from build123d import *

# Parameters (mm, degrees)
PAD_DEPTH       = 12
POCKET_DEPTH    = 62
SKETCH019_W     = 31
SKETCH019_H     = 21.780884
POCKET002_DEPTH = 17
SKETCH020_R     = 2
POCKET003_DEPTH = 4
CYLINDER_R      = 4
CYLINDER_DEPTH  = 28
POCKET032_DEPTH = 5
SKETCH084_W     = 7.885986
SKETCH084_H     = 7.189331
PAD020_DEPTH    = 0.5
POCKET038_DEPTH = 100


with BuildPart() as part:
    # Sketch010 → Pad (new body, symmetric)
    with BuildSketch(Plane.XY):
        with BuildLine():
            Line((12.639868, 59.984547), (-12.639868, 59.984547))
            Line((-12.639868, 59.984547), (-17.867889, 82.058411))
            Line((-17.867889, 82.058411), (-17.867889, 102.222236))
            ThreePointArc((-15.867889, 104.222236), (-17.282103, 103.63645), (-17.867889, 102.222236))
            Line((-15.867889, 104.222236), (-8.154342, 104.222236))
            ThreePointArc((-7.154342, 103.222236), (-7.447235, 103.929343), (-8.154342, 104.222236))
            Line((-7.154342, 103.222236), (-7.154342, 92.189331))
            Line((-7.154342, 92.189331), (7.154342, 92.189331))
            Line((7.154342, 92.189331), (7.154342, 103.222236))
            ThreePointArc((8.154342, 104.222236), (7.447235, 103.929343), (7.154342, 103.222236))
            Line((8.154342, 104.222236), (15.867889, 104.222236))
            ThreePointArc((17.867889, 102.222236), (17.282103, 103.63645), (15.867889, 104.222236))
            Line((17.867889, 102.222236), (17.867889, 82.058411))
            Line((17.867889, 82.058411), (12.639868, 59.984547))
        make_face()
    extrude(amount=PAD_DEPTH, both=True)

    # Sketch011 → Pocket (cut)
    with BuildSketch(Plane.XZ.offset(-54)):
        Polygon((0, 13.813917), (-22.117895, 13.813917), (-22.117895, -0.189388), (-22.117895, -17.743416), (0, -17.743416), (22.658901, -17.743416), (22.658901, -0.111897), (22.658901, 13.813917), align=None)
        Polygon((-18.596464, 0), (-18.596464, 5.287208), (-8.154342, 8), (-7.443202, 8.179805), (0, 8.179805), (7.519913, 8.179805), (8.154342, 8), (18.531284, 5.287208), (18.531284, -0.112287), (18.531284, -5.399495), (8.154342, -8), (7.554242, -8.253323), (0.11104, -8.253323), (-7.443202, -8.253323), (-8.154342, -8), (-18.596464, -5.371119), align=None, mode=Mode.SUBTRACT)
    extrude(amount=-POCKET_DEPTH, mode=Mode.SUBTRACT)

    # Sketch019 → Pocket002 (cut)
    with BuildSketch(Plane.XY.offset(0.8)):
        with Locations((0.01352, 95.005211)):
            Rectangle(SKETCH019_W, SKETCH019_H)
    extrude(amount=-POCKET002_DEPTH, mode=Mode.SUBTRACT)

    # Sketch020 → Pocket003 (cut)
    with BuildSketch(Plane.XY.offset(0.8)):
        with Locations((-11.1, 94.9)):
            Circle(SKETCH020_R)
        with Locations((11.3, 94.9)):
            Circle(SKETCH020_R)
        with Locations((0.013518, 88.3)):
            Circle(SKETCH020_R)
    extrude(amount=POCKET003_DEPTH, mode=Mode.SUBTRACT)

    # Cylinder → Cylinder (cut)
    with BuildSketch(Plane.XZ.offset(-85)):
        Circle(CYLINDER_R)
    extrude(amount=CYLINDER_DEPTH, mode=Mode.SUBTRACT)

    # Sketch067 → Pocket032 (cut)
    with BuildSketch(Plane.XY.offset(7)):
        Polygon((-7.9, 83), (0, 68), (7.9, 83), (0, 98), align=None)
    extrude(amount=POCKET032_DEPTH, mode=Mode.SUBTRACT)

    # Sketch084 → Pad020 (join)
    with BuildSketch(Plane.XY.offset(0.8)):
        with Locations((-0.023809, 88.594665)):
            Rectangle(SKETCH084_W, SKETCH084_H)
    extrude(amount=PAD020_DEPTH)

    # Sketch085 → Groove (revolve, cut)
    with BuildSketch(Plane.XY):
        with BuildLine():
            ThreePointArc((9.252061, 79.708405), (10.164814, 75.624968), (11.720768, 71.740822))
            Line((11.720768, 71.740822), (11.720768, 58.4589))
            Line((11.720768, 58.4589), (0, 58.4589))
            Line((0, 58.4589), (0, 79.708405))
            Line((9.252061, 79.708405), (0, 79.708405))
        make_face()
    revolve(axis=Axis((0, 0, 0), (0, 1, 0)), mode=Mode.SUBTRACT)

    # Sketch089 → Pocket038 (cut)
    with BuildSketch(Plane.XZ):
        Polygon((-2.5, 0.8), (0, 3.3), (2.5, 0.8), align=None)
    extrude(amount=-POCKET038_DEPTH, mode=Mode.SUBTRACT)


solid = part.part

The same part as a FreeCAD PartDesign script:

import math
import FreeCAD as App
import Part
import Sketcher
from FreeCAD import Vector


def add_polygon(sketch, points):
    """Adds a closed chain of lines whose ends are joined by coincident constraints."""
    first, n = sketch.GeometryCount, len(points)
    for a, b in zip(points, points[1:] + points[:1]):
        sketch.addGeometry(Part.LineSegment(App.Vector(*a, 0), App.Vector(*b, 0)), False)
    for i in range(n):
        sketch.addConstraint(Sketcher.Constraint("Coincident", first + i, 2, first + (i + 1) % n, 1))

doc = App.newDocument("Part")
body = doc.addObject("PartDesign::Body", "Body")

# Sketch on XY plane
sketch1 = doc.addObject("Sketcher::SketchObject", "Sketch")
body.addObject(sketch1)
sketch1.AttachmentSupport = (doc.XY_Plane, [""])
sketch1.MapMode = "FlatFace"
sketch1.addGeometry([
    Part.LineSegment(Vector(-12.639868, 59.984547, 0), Vector(12.639868, 59.984547, 0)),  # 0
    Part.LineSegment(Vector(12.639868, 59.984547, 0), Vector(17.867889, 82.058411, 0)),  # 1
    Part.LineSegment(Vector(17.867889, 82.058411, 0), Vector(17.867889, 102.222236, 0)),  # 2
    Part.ArcOfCircle(Part.Circle(Vector(15.86789, 102.222237, 0), Vector(0, 0, 1), 1.999999), math.radians(-0.000043), math.radians(90.000043)),  # 3
    Part.LineSegment(Vector(15.867889, 104.222236, 0), Vector(8.154342, 104.222236, 0)),  # 4
    Part.ArcOfCircle(Part.Circle(Vector(8.154341, 103.222237, 0), Vector(0, 0, 1), 0.999999), math.radians(89.999957), math.radians(180.000043)),  # 5
    Part.LineSegment(Vector(7.154342, 103.222236, 0), Vector(7.154342, 92.189331, 0)),  # 6
    Part.LineSegment(Vector(7.154342, 92.189331, 0), Vector(-7.154342, 92.189331, 0)),  # 7
    Part.LineSegment(Vector(-7.154342, 92.189331, 0), Vector(-7.154342, 103.222236, 0)),  # 8
    Part.ArcOfCircle(Part.Circle(Vector(-8.154341, 103.222237, 0), Vector(0, 0, 1), 0.999999), math.radians(-0.000043), math.radians(90.000043)),  # 9
    Part.LineSegment(Vector(-8.154342, 104.222236, 0), Vector(-15.867889, 104.222236, 0)),  # 10
    Part.ArcOfCircle(Part.Circle(Vector(-15.86789, 102.222237, 0), Vector(0, 0, 1), 1.999999), math.radians(89.999957), math.radians(180.000043)),  # 11
    Part.LineSegment(Vector(-17.867889, 102.222236, 0), Vector(-17.867889, 82.058411, 0)),  # 12
    Part.LineSegment(Vector(-17.867889, 82.058411, 0), Vector(-12.639868, 59.984547, 0)),  # 13
], False)
sketch1.addConstraint([
    Sketcher.Constraint("Coincident", 0, 2, 1, 1),
    Sketcher.Constraint("Coincident", 1, 2, 2, 1),
    Sketcher.Constraint("Tangent", 2, 2, 3, 1),
    Sketcher.Constraint("Tangent", 3, 2, 4, 1),
    Sketcher.Constraint("Tangent", 4, 2, 5, 1),
    Sketcher.Constraint("Tangent", 5, 2, 6, 1),
    Sketcher.Constraint("Coincident", 6, 2, 7, 1),
    Sketcher.Constraint("Coincident", 7, 2, 8, 1),
    Sketcher.Constraint("Tangent", 8, 2, 9, 1),
    Sketcher.Constraint("Tangent", 9, 2, 10, 1),
    Sketcher.Constraint("Tangent", 10, 2, 11, 1),
    Sketcher.Constraint("Tangent", 11, 2, 12, 1),
    Sketcher.Constraint("Coincident", 12, 2, 13, 1),
    Sketcher.Constraint("Coincident", 13, 2, 0, 1),
    Sketcher.Constraint("Horizontal", 0),
    Sketcher.Constraint("Vertical", 2),
    Sketcher.Constraint("Horizontal", 4),
    Sketcher.Constraint("Vertical", 6),
    Sketcher.Constraint("Horizontal", 7),
    Sketcher.Constraint("Vertical", 8),
    Sketcher.Constraint("Horizontal", 10),
    Sketcher.Constraint("Vertical", 12),
    Sketcher.Constraint("Equal", 5, 9),
    Sketcher.Constraint("Equal", 3, 11),
    Sketcher.Constraint("Symmetric", 5, 3, 9, 3, -2),
    Sketcher.Constraint("Symmetric", 1, 2, 12, 2, -2),
    Sketcher.Constraint("Equal", 1, 13),
    Sketcher.Constraint("Radius", 3, 1.999999),
    Sketcher.Constraint("Radius", 5, 0.999999),
    Sketcher.Constraint("DistanceX", 0, 1, 0, 2, 25.279736),
    Sketcher.Constraint("DistanceX", 4, 2, 4, 1, 7.713547),
    Sketcher.Constraint("DistanceX", 7, 2, 7, 1, 14.308684),
    Sketcher.Constraint("DistanceY", 2, 1, 2, 2, 20.163825),
    Sketcher.Constraint("DistanceY", 6, 2, 6, 1, 11.032905),
    Sketcher.Constraint("DistanceY", -1, 1, 1, 2, 82.058411),
    Sketcher.Constraint("DistanceY", 0, 2, 3, 3, 42.23769),
])
pad1 = doc.addObject("PartDesign::Pad", "Pad")
body.addObject(pad1)
pad1.Profile = sketch1
pad1.Length = 24
pad1.Midplane = True

# Sketch on XZ plane
sketch2 = doc.addObject("Sketcher::SketchObject", "Sketch001")
body.addObject(sketch2)
sketch2.AttachmentSupport = (doc.XZ_Plane, [""])
sketch2.MapMode = "FlatFace"
sketch2.AttachmentOffset = App.Placement(Vector(0, 0, -54), App.Rotation())
add_polygon(sketch2, [(-22.117895, 13.813917), (-22.117895, -17.743416), (22.658901, -17.743416), (22.658901, 13.813917)])  # lines 0-3
add_polygon(sketch2, [(-18.596464, -5.371119), (-18.596464, 5.287208), (-8.154342, 8), (-7.443202, 8.179805), (7.519913, 8.179805), (8.154342, 8), (18.531284, 5.287208), (18.531284, -5.399495), (8.154342, -8), (7.554242, -8.253323), (-7.443202, -8.253323), (-8.154342, -8)])  # lines 4-15
sketch2.addConstraint([
    Sketcher.Constraint("Vertical", 0),
    Sketcher.Constraint("Horizontal", 1),
    Sketcher.Constraint("Vertical", 2),
    Sketcher.Constraint("Horizontal", 3),
    Sketcher.Constraint("Vertical", 4),
    Sketcher.Constraint("Horizontal", 7),
    Sketcher.Constraint("Vertical", 10),
    Sketcher.Constraint("Horizontal", 13),
    Sketcher.Constraint("Symmetric", 5, 2, 11, 2, -1, 1),
    Sketcher.Constraint("Symmetric", 8, 2, 14, 2, -1, 1),
    Sketcher.Constraint("Symmetric", 5, 2, 8, 2, -2),
    Sketcher.Constraint("Horizontal", 4, 2, 9, 2),
    Sketcher.Constraint("Vertical", 6, 2, 13, 2),
    Sketcher.Constraint("DistanceY", -1, 1, 5, 2, 8.0),
    Sketcher.Constraint("DistanceX", -1, 1, 1, 2, 22.658901),
    Sketcher.Constraint("DistanceY", 10, 2, 7, 2, 13.5793),
    Sketcher.Constraint("DistanceX", 12, 2, 11, 2, 0.6001),
    Sketcher.Constraint("Distance", 5, 10.788751),
    Sketcher.Constraint("Distance", 6, 0.733519),
    Sketcher.Constraint("Distance", 11, 10.697829),
    Sketcher.Constraint("Distance", 15, 10.767958),
    Sketcher.Constraint("DistanceX", 1, 1, 1, 2, 44.776796),
    Sketcher.Constraint("DistanceX", 7, 1, 7, 2, 14.963115),
    Sketcher.Constraint("DistanceX", 13, 2, 13, 1, 14.997444),
    Sketcher.Constraint("DistanceY", 0, 2, 0, 1, 31.557333),
    Sketcher.Constraint("DistanceY", 4, 1, 4, 2, 10.658327),
    Sketcher.Constraint("DistanceY", 10, 2, 10, 1, 10.686703),
    Sketcher.Constraint("DistanceY", 4, 2, 3, 2, 8.526709),
    Sketcher.Constraint("DistanceY", 12, 2, 10, 2, 2.853828),
])
pocket1 = doc.addObject("PartDesign::Pocket", "Pocket")
body.addObject(pocket1)
pocket1.Profile = sketch2
pocket1.Length = 62

# Sketch on XY plane
sketch3 = doc.addObject("Sketcher::SketchObject", "Sketch002")
body.addObject(sketch3)
sketch3.AttachmentSupport = (doc.XY_Plane, [""])
sketch3.MapMode = "FlatFace"
sketch3.AttachmentOffset = App.Placement(Vector(0, 0, 0.8), App.Rotation())
add_polygon(sketch3, [(-15.48648, 105.895653), (-15.48648, 84.114769), (15.51352, 84.114769), (15.51352, 105.895653)])  # lines 0-3
sketch3.addConstraint([
    Sketcher.Constraint("Vertical", 0),
    Sketcher.Constraint("Horizontal", 1),
    Sketcher.Constraint("Vertical", 2),
    Sketcher.Constraint("Horizontal", 3),
    Sketcher.Constraint("DistanceX", 1, 1, 1, 2, 31.0),
    Sketcher.Constraint("DistanceY", 0, 2, 0, 1, 21.780884),
    Sketcher.Constraint("DistanceX", 0, 2, -1, 1, 15.48648),
    Sketcher.Constraint("DistanceY", -1, 1, 0, 2, 84.114769),
])
pocket2 = doc.addObject("PartDesign::Pocket", "Pocket001")
body.addObject(pocket2)
pocket2.Profile = sketch3
pocket2.Length = 17

# Sketch on XY plane
sketch4 = doc.addObject("Sketcher::SketchObject", "Sketch003")
body.addObject(sketch4)
sketch4.AttachmentSupport = (doc.XY_Plane, [""])
sketch4.MapMode = "FlatFace"
sketch4.AttachmentOffset = App.Placement(Vector(0, 0, 0.8), App.Rotation())
sketch4.addGeometry([
    Part.Circle(Vector(-11.1, 94.9, 0), Vector(0, 0, 1), 2),
    Part.Circle(Vector(11.3, 94.9, 0), Vector(0, 0, 1), 2),
    Part.Circle(Vector(0.013518, 88.3, 0), Vector(0, 0, 1), 2),
], False)
sketch4.addConstraint([
    Sketcher.Constraint("Equal", 0, 1),
    Sketcher.Constraint("Equal", 1, 2),
    Sketcher.Constraint("Horizontal", 0, 3, 1, 3),
    Sketcher.Constraint("Diameter", 0, 4.0),
    Sketcher.Constraint("DistanceX", 0, 3, -1, 1, 11.1),
    Sketcher.Constraint("DistanceY", -1, 1, 0, 3, 94.9),
    Sketcher.Constraint("DistanceX", -1, 1, 1, 3, 11.3),
    Sketcher.Constraint("DistanceY", -1, 1, 2, 3, 88.3),
    Sketcher.Constraint("DistanceX", -1, 1, 2, 3, 0.013518),
])
pocket3 = doc.addObject("PartDesign::Pocket", "Pocket002")
body.addObject(pocket3)
pocket3.Profile = sketch4
pocket3.Length = 4
pocket3.Reversed = True

# Sketch on XZ plane
sketch5 = doc.addObject("Sketcher::SketchObject", "Sketch004")
body.addObject(sketch5)
sketch5.AttachmentSupport = (doc.XZ_Plane, [""])
sketch5.MapMode = "FlatFace"
sketch5.AttachmentOffset = App.Placement(Vector(0, 0, -85), App.Rotation())
sketch5.addGeometry(Part.Circle(Vector(0, 0, 0), Vector(0, 0, 1), 4), False)
sketch5.addConstraint([
    Sketcher.Constraint("Coincident", 0, 3, -1, 1),
    Sketcher.Constraint("Diameter", 0, 8.0),
])
pocket4 = doc.addObject("PartDesign::Pocket", "Pocket003")
body.addObject(pocket4)
pocket4.Profile = sketch5
pocket4.Length = 28
pocket4.Reversed = True

# Sketch on XY plane
sketch6 = doc.addObject("Sketcher::SketchObject", "Sketch005")
body.addObject(sketch6)
sketch6.AttachmentSupport = (doc.XY_Plane, [""])
sketch6.MapMode = "FlatFace"
sketch6.AttachmentOffset = App.Placement(Vector(0, 0, 7), App.Rotation())
add_polygon(sketch6, [(-7.9, 83), (0, 68), (7.9, 83), (0, 98)])  # lines 0-3
sketch6.addConstraint([
    Sketcher.Constraint("Symmetric", 1, 2, 3, 2, -2),
    Sketcher.Constraint("PointOnObject", 0, 2, -2),
    Sketcher.Constraint("PointOnObject", 2, 2, -2),
    Sketcher.Constraint("Parallel", 0, 2),
    Sketcher.Constraint("DistanceY", -1, 1, 0, 2, 68.0),
    Sketcher.Constraint("DistanceY", -1, 1, 1, 2, 83.0),
    Sketcher.Constraint("DistanceX", -1, 1, 1, 2, 7.9),
])
pocket5 = doc.addObject("PartDesign::Pocket", "Pocket004")
body.addObject(pocket5)
pocket5.Profile = sketch6
pocket5.Length = 5
pocket5.Reversed = True

# Sketch on XY plane
sketch7 = doc.addObject("Sketcher::SketchObject", "Sketch006")
body.addObject(sketch7)
sketch7.AttachmentSupport = (doc.XY_Plane, [""])
sketch7.MapMode = "FlatFace"
sketch7.AttachmentOffset = App.Placement(Vector(0, 0, 0.8), App.Rotation())
add_polygon(sketch7, [(-3.966802, 92.18933), (-3.966802, 85), (3.919184, 85), (3.919184, 92.18933)])  # lines 0-3
sketch7.addConstraint([
    Sketcher.Constraint("Vertical", 0),
    Sketcher.Constraint("Horizontal", 1),
    Sketcher.Constraint("Vertical", 2),
    Sketcher.Constraint("Horizontal", 3),
    Sketcher.Constraint("DistanceY", -1, 1, 0, 2, 85.0),
    Sketcher.Constraint("DistanceY", 0, 2, 0, 1, 7.189331),
    Sketcher.Constraint("DistanceX", 0, 2, -1, 1, 3.966802),
    Sketcher.Constraint("DistanceX", 1, 1, 1, 2, 7.885986),
])
pad2 = doc.addObject("PartDesign::Pad", "Pad001")
body.addObject(pad2)
pad2.Profile = sketch7
pad2.Length = 0.5

# Sketch on XY plane
sketch8 = doc.addObject("Sketcher::SketchObject", "Sketch007")
body.addObject(sketch8)
sketch8.AttachmentSupport = (doc.XY_Plane, [""])
sketch8.MapMode = "FlatFace"
sketch8.addGeometry([
    Part.ArcOfCircle(Part.Circle(Vector(35.000018, 83.320004, 0), Vector(0, 0, 1), 26.000018), math.radians(-172.015364), math.radians(-153.554084)),  # 0
    Part.LineSegment(Vector(9.252061, 79.708405, 0), Vector(0, 79.708405, 0)),  # 1
    Part.LineSegment(Vector(0, 79.708405, 0), Vector(0, 58.4589, 0)),  # 2
    Part.LineSegment(Vector(0, 58.4589, 0), Vector(11.720768, 58.4589, 0)),  # 3
    Part.LineSegment(Vector(11.720768, 58.4589, 0), Vector(11.720768, 71.740822, 0)),  # 4
], False)
sketch8.addConstraint([
    Sketcher.Constraint("Coincident", 0, 1, 1, 1),
    Sketcher.Constraint("Coincident", 1, 2, 2, 1),
    Sketcher.Constraint("Coincident", 2, 2, 3, 1),
    Sketcher.Constraint("Coincident", 3, 2, 4, 1),
    Sketcher.Constraint("Coincident", 4, 2, 0, 2),
    Sketcher.Constraint("Horizontal", 1),
    Sketcher.Constraint("Vertical", 2),
    Sketcher.Constraint("Horizontal", 3),
    Sketcher.Constraint("Vertical", 4),
    Sketcher.Constraint("PointOnObject", 1, 2, -2),
    Sketcher.Constraint("Radius", 0, 26.000018),
    Sketcher.Constraint("DistanceX", 1, 2, 1, 1, 9.252061),
    Sketcher.Constraint("DistanceY", 4, 1, 4, 2, 13.281922),
    Sketcher.Constraint("DistanceY", -1, 1, 2, 2, 58.4589),
    Sketcher.Constraint("DistanceY", 0, 1, 0, 3, 3.611599),
    Sketcher.Constraint("DistanceX", 3, 1, 3, 2, 11.720768),
])
groove = doc.addObject("PartDesign::Groove", "Groove")
body.addObject(groove)
groove.Profile = sketch8
groove.ReferenceAxis = (sketch8, ["V_Axis"])
groove.Angle = 360

# Sketch on XZ plane
sketch9 = doc.addObject("Sketcher::SketchObject", "Sketch008")
body.addObject(sketch9)
sketch9.AttachmentSupport = (doc.XZ_Plane, [""])
sketch9.MapMode = "FlatFace"
add_polygon(sketch9, [(0, 3.3), (-2.5, 0.8), (2.5, 0.8)])  # lines 0-2
sketch9.addConstraint([
    Sketcher.Constraint("Horizontal", 1),
    Sketcher.Constraint("PointOnObject", 2, 2, -2),
    Sketcher.Constraint("Perpendicular", 0, 2),
    Sketcher.Constraint("Equal", 0, 2),
    Sketcher.Constraint("DistanceX", 1, 1, 1, 2, 5.0),
    Sketcher.Constraint("DistanceY", -1, 1, 0, 2, 0.8),
])
pocket6 = doc.addObject("PartDesign::Pocket", "Pocket005")
body.addObject(pocket6)
pocket6.Profile = sketch9
pocket6.Length = 100

doc.recompute()
